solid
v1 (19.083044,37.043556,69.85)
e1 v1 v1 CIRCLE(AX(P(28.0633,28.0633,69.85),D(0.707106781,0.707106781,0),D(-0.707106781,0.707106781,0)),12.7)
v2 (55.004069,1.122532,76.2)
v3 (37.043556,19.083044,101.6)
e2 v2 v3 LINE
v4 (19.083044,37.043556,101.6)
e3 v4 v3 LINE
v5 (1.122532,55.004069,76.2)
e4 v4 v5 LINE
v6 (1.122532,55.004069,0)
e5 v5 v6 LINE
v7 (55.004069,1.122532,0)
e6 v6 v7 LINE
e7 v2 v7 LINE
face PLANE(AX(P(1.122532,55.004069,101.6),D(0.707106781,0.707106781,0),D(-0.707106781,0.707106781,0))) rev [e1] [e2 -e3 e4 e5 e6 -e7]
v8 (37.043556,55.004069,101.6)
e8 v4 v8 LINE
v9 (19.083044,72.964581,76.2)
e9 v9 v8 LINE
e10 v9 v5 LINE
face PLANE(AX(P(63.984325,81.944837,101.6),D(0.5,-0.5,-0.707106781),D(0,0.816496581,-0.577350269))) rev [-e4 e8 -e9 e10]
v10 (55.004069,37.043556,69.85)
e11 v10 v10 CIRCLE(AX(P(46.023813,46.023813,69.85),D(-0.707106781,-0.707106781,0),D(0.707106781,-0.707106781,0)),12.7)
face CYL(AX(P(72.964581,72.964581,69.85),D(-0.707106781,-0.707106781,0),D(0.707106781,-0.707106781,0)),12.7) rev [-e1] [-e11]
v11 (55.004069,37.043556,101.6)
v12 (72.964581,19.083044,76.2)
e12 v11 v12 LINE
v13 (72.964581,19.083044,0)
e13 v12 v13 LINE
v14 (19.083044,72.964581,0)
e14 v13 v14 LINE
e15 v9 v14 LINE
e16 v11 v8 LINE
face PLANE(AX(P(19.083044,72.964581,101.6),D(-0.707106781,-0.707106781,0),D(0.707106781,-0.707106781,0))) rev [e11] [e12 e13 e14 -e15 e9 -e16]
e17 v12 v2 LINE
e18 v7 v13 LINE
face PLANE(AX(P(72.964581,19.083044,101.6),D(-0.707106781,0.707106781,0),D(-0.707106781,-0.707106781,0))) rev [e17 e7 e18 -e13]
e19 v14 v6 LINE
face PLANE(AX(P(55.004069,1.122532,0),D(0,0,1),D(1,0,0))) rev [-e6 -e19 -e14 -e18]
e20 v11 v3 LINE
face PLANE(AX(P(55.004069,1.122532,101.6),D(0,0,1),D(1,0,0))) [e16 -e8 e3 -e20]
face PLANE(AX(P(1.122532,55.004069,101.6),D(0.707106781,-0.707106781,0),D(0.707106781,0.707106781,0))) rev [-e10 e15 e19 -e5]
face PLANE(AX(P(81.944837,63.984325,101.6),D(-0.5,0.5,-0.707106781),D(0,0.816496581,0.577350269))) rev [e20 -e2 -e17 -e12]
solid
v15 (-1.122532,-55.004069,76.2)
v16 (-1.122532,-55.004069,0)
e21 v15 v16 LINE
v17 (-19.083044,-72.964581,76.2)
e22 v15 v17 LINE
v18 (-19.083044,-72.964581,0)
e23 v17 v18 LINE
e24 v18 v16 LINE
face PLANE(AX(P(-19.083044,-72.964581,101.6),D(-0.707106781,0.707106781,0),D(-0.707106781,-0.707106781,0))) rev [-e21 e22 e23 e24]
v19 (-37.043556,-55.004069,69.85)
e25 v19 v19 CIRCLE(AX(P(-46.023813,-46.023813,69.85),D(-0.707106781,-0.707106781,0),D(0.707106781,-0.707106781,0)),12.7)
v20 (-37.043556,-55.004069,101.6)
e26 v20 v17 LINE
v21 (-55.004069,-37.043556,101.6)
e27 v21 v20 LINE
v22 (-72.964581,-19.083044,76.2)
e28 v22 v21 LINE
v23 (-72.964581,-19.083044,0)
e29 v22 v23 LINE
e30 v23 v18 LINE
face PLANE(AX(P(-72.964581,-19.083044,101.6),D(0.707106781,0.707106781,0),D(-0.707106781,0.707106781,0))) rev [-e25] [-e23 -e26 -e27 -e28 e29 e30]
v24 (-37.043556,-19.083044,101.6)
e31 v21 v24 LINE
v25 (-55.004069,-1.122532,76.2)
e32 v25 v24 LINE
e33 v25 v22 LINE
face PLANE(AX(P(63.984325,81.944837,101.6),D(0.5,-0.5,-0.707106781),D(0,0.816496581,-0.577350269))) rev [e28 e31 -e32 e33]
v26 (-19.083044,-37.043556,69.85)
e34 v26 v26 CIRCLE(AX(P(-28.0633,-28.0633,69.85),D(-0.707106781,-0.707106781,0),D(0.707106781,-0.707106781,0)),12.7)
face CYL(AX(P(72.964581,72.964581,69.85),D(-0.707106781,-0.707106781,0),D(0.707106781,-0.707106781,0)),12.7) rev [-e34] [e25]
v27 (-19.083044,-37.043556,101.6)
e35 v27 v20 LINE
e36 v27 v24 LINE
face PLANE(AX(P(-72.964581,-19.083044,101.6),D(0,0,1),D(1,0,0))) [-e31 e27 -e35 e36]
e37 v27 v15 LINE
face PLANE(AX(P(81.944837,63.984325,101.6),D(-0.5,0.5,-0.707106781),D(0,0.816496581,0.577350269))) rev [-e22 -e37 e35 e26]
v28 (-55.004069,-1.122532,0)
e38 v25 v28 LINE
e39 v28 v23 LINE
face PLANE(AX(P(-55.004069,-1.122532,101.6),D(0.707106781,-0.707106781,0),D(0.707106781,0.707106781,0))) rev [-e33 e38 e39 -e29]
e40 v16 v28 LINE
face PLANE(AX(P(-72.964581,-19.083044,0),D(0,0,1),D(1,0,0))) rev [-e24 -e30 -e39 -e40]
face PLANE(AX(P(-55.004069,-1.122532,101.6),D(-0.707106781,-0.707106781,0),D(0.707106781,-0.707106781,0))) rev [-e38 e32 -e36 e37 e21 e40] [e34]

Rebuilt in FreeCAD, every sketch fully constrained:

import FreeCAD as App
import Part
import Sketcher
from FreeCAD import Vector
Q = App.Units.Quantity


def add_polygon(sketch, points):
    """Adds a closed chain of lines whose ends are joined by coincident constraints."""
    first, n = sketch.GeometryCount, len(points)
    for a, b in zip(points, points[1:] + points[:1]):
        sketch.addGeometry(Part.LineSegment(App.Vector(*a, 0), App.Vector(*b, 0)), False)
    for i in range(n):
        sketch.addConstraint(Sketcher.Constraint("Coincident", first + i, 2, first + (i + 1) % n, 1))

doc = App.newDocument("Part")
params = doc.addObject("Spreadsheet::Sheet", "Params")
for row, (alias, value) in enumerate([
    ("sketch1_length", "3 in"),
    ("sketch1_length2", "1 in"),
    ("pad1_length", "4 in"),
    ("sketch2_length", "3 in"),
    ("sketch2_length2", "1 in"),
    ("pad2_length", "4 in"),
    ("sketch3_diameter", "1 in"),
    ("sketch3_width", "1 in"),
    ("pad3_length", "197.568145 mm"),
], start=1):
    params.set(f"A{row}", alias)
    params.set(f"B{row}", "=" + value)
    params.setAlias(f"B{row}", alias)

body = doc.addObject("PartDesign::Body", "Body")

sketch1 = body.newObject("Sketcher::SketchObject", "Sketch")
sketch1.AttachmentSupport = (doc.getObject("XY_Plane"), [""])
sketch1.MapMode = "FlatFace"
add_polygon(sketch1, [(-1, -55), (-55, -1), (-73, -19), (-19, -73)])
sketch1.addConstraint([
    Sketcher.Constraint("Perpendicular", 0, 1),
    Sketcher.Constraint("Perpendicular", 1, 2),
    Sketcher.Constraint("Perpendicular", 2, 3),
    Sketcher.Constraint("Distance", 0, Q("3 in")),
    Sketcher.Constraint("Distance", 1, Q("1 in")),
    Sketcher.Constraint("Angle", 0, Q("135 deg")),
    Sketcher.Constraint("DistanceX", 0, 2, -1, 1, 55.004069),
    Sketcher.Constraint("DistanceY", 2, 2, -1, 1, 72.964581),
])
sketch1.setExpression("Constraints[7]", "Params.sketch1_length")
sketch1.setExpression("Constraints[8]", "Params.sketch1_length2")
pad1 = body.newObject("PartDesign::Pad", "Pad")
pad1.Profile = sketch1
pad1.setExpression("Length", "Params.pad1_length")
body2 = doc.addObject("PartDesign::Body", "Body001")

sketch2 = body2.newObject("Sketcher::SketchObject", "Sketch001")
sketch2.AttachmentSupport = (doc.getObject("XY_Plane001"), [""])
sketch2.MapMode = "FlatFace"
add_polygon(sketch2, [(1, 55), (55, 1), (73, 19), (19, 73)])
sketch2.addConstraint([
    Sketcher.Constraint("Perpendicular", 0, 1),
    Sketcher.Constraint("Perpendicular", 1, 2),
    Sketcher.Constraint("Perpendicular", 2, 3),
    Sketcher.Constraint("Distance", 0, Q("3 in")),
    Sketcher.Constraint("Distance", 1, Q("1 in")),
    Sketcher.Constraint("Angle", 0, Q("-45 deg")),
    Sketcher.Constraint("DistanceX", -1, 1, 0, 2, 55.004069),
    Sketcher.Constraint("DistanceY", -1, 1, 2, 2, 72.964581),
])
sketch2.setExpression("Constraints[7]", "Params.sketch2_length")
sketch2.setExpression("Constraints[8]", "Params.sketch2_length2")
pad2 = body2.newObject("PartDesign::Pad", "Pad001")
pad2.Profile = sketch2
pad2.setExpression("Length", "Params.pad2_length")
body3 = doc.addObject("PartDesign::Body", "Body002")
body3.AllowCompound = True

sketch3 = body3.newObject("Sketcher::SketchObject", "Sketch002")
sketch3.Placement = App.Placement(Vector(-46.023813, -46.023813, 0), App.Rotation(Vector(0.707106781, -0.707106781, 0), Vector(0, 0, 0.999999999), Vector(-0.707106781, -0.707106781, 0), "ZXY"))
sketch3.addGeometry(Part.Circle(Vector(0, 70, 0), Vector(0, 0, 1), 13), False)
add_polygon(sketch3, [(-38, 76), (-13, 102), (-38, 102)])
add_polygon(sketch3, [(13, 102), (38, 76), (38, 102)])
sketch3.addConstraint([
    Sketcher.Constraint("Horizontal", 2),
    Sketcher.Constraint("Vertical", 3),
    Sketcher.Constraint("Vertical", 5),
    Sketcher.Constraint("Horizontal", 6),
    Sketcher.Constraint("Symmetric", 3, 2, 4, 2, -2),
    Sketcher.Constraint("Symmetric", 1, 2, 6, 2, -2),
    Sketcher.Constraint("PointOnObject", 0, 3, -2),
    Sketcher.Constraint("Perpendicular", 1, 4),
    Sketcher.Constraint("Diameter", 0, Q("1 in")),
    Sketcher.Constraint("DistanceX", 2, 2, 2, 1, Q("1 in")),
    Sketcher.Constraint("DistanceY", -1, 1, 1, 2, Q("4 in")),
    Sketcher.Constraint("DistanceX", 1, 2, 4, 2, Q("2 in")),
    Sketcher.Constraint("DistanceY", -1, 1, 0, 3, Q("2.75 in")),
])
sketch3.setExpression("Constraints[14]", "Params.sketch3_diameter")
sketch3.setExpression("Constraints[15]", "Params.sketch3_width")
pad3 = body3.newObject("PartDesign::Pad", "Pad002")
pad3.Profile = sketch3
pad3.setExpression("Length", "Params.pad3_length")
pad3.Reversed = True
doc.recompute()

body4 = doc.addObject("PartDesign::Body", "Body003")
body4.BaseFeature = body3
boolean = body.newObject("PartDesign::Boolean", "Boolean")
boolean.Type = "Cut"
boolean.addObjects([body4])
doc.recompute()

boolean2 = body2.newObject("PartDesign::Boolean", "Boolean001")
boolean2.Type = "Cut"
boolean2.addObjects([body3])

doc.recompute()
